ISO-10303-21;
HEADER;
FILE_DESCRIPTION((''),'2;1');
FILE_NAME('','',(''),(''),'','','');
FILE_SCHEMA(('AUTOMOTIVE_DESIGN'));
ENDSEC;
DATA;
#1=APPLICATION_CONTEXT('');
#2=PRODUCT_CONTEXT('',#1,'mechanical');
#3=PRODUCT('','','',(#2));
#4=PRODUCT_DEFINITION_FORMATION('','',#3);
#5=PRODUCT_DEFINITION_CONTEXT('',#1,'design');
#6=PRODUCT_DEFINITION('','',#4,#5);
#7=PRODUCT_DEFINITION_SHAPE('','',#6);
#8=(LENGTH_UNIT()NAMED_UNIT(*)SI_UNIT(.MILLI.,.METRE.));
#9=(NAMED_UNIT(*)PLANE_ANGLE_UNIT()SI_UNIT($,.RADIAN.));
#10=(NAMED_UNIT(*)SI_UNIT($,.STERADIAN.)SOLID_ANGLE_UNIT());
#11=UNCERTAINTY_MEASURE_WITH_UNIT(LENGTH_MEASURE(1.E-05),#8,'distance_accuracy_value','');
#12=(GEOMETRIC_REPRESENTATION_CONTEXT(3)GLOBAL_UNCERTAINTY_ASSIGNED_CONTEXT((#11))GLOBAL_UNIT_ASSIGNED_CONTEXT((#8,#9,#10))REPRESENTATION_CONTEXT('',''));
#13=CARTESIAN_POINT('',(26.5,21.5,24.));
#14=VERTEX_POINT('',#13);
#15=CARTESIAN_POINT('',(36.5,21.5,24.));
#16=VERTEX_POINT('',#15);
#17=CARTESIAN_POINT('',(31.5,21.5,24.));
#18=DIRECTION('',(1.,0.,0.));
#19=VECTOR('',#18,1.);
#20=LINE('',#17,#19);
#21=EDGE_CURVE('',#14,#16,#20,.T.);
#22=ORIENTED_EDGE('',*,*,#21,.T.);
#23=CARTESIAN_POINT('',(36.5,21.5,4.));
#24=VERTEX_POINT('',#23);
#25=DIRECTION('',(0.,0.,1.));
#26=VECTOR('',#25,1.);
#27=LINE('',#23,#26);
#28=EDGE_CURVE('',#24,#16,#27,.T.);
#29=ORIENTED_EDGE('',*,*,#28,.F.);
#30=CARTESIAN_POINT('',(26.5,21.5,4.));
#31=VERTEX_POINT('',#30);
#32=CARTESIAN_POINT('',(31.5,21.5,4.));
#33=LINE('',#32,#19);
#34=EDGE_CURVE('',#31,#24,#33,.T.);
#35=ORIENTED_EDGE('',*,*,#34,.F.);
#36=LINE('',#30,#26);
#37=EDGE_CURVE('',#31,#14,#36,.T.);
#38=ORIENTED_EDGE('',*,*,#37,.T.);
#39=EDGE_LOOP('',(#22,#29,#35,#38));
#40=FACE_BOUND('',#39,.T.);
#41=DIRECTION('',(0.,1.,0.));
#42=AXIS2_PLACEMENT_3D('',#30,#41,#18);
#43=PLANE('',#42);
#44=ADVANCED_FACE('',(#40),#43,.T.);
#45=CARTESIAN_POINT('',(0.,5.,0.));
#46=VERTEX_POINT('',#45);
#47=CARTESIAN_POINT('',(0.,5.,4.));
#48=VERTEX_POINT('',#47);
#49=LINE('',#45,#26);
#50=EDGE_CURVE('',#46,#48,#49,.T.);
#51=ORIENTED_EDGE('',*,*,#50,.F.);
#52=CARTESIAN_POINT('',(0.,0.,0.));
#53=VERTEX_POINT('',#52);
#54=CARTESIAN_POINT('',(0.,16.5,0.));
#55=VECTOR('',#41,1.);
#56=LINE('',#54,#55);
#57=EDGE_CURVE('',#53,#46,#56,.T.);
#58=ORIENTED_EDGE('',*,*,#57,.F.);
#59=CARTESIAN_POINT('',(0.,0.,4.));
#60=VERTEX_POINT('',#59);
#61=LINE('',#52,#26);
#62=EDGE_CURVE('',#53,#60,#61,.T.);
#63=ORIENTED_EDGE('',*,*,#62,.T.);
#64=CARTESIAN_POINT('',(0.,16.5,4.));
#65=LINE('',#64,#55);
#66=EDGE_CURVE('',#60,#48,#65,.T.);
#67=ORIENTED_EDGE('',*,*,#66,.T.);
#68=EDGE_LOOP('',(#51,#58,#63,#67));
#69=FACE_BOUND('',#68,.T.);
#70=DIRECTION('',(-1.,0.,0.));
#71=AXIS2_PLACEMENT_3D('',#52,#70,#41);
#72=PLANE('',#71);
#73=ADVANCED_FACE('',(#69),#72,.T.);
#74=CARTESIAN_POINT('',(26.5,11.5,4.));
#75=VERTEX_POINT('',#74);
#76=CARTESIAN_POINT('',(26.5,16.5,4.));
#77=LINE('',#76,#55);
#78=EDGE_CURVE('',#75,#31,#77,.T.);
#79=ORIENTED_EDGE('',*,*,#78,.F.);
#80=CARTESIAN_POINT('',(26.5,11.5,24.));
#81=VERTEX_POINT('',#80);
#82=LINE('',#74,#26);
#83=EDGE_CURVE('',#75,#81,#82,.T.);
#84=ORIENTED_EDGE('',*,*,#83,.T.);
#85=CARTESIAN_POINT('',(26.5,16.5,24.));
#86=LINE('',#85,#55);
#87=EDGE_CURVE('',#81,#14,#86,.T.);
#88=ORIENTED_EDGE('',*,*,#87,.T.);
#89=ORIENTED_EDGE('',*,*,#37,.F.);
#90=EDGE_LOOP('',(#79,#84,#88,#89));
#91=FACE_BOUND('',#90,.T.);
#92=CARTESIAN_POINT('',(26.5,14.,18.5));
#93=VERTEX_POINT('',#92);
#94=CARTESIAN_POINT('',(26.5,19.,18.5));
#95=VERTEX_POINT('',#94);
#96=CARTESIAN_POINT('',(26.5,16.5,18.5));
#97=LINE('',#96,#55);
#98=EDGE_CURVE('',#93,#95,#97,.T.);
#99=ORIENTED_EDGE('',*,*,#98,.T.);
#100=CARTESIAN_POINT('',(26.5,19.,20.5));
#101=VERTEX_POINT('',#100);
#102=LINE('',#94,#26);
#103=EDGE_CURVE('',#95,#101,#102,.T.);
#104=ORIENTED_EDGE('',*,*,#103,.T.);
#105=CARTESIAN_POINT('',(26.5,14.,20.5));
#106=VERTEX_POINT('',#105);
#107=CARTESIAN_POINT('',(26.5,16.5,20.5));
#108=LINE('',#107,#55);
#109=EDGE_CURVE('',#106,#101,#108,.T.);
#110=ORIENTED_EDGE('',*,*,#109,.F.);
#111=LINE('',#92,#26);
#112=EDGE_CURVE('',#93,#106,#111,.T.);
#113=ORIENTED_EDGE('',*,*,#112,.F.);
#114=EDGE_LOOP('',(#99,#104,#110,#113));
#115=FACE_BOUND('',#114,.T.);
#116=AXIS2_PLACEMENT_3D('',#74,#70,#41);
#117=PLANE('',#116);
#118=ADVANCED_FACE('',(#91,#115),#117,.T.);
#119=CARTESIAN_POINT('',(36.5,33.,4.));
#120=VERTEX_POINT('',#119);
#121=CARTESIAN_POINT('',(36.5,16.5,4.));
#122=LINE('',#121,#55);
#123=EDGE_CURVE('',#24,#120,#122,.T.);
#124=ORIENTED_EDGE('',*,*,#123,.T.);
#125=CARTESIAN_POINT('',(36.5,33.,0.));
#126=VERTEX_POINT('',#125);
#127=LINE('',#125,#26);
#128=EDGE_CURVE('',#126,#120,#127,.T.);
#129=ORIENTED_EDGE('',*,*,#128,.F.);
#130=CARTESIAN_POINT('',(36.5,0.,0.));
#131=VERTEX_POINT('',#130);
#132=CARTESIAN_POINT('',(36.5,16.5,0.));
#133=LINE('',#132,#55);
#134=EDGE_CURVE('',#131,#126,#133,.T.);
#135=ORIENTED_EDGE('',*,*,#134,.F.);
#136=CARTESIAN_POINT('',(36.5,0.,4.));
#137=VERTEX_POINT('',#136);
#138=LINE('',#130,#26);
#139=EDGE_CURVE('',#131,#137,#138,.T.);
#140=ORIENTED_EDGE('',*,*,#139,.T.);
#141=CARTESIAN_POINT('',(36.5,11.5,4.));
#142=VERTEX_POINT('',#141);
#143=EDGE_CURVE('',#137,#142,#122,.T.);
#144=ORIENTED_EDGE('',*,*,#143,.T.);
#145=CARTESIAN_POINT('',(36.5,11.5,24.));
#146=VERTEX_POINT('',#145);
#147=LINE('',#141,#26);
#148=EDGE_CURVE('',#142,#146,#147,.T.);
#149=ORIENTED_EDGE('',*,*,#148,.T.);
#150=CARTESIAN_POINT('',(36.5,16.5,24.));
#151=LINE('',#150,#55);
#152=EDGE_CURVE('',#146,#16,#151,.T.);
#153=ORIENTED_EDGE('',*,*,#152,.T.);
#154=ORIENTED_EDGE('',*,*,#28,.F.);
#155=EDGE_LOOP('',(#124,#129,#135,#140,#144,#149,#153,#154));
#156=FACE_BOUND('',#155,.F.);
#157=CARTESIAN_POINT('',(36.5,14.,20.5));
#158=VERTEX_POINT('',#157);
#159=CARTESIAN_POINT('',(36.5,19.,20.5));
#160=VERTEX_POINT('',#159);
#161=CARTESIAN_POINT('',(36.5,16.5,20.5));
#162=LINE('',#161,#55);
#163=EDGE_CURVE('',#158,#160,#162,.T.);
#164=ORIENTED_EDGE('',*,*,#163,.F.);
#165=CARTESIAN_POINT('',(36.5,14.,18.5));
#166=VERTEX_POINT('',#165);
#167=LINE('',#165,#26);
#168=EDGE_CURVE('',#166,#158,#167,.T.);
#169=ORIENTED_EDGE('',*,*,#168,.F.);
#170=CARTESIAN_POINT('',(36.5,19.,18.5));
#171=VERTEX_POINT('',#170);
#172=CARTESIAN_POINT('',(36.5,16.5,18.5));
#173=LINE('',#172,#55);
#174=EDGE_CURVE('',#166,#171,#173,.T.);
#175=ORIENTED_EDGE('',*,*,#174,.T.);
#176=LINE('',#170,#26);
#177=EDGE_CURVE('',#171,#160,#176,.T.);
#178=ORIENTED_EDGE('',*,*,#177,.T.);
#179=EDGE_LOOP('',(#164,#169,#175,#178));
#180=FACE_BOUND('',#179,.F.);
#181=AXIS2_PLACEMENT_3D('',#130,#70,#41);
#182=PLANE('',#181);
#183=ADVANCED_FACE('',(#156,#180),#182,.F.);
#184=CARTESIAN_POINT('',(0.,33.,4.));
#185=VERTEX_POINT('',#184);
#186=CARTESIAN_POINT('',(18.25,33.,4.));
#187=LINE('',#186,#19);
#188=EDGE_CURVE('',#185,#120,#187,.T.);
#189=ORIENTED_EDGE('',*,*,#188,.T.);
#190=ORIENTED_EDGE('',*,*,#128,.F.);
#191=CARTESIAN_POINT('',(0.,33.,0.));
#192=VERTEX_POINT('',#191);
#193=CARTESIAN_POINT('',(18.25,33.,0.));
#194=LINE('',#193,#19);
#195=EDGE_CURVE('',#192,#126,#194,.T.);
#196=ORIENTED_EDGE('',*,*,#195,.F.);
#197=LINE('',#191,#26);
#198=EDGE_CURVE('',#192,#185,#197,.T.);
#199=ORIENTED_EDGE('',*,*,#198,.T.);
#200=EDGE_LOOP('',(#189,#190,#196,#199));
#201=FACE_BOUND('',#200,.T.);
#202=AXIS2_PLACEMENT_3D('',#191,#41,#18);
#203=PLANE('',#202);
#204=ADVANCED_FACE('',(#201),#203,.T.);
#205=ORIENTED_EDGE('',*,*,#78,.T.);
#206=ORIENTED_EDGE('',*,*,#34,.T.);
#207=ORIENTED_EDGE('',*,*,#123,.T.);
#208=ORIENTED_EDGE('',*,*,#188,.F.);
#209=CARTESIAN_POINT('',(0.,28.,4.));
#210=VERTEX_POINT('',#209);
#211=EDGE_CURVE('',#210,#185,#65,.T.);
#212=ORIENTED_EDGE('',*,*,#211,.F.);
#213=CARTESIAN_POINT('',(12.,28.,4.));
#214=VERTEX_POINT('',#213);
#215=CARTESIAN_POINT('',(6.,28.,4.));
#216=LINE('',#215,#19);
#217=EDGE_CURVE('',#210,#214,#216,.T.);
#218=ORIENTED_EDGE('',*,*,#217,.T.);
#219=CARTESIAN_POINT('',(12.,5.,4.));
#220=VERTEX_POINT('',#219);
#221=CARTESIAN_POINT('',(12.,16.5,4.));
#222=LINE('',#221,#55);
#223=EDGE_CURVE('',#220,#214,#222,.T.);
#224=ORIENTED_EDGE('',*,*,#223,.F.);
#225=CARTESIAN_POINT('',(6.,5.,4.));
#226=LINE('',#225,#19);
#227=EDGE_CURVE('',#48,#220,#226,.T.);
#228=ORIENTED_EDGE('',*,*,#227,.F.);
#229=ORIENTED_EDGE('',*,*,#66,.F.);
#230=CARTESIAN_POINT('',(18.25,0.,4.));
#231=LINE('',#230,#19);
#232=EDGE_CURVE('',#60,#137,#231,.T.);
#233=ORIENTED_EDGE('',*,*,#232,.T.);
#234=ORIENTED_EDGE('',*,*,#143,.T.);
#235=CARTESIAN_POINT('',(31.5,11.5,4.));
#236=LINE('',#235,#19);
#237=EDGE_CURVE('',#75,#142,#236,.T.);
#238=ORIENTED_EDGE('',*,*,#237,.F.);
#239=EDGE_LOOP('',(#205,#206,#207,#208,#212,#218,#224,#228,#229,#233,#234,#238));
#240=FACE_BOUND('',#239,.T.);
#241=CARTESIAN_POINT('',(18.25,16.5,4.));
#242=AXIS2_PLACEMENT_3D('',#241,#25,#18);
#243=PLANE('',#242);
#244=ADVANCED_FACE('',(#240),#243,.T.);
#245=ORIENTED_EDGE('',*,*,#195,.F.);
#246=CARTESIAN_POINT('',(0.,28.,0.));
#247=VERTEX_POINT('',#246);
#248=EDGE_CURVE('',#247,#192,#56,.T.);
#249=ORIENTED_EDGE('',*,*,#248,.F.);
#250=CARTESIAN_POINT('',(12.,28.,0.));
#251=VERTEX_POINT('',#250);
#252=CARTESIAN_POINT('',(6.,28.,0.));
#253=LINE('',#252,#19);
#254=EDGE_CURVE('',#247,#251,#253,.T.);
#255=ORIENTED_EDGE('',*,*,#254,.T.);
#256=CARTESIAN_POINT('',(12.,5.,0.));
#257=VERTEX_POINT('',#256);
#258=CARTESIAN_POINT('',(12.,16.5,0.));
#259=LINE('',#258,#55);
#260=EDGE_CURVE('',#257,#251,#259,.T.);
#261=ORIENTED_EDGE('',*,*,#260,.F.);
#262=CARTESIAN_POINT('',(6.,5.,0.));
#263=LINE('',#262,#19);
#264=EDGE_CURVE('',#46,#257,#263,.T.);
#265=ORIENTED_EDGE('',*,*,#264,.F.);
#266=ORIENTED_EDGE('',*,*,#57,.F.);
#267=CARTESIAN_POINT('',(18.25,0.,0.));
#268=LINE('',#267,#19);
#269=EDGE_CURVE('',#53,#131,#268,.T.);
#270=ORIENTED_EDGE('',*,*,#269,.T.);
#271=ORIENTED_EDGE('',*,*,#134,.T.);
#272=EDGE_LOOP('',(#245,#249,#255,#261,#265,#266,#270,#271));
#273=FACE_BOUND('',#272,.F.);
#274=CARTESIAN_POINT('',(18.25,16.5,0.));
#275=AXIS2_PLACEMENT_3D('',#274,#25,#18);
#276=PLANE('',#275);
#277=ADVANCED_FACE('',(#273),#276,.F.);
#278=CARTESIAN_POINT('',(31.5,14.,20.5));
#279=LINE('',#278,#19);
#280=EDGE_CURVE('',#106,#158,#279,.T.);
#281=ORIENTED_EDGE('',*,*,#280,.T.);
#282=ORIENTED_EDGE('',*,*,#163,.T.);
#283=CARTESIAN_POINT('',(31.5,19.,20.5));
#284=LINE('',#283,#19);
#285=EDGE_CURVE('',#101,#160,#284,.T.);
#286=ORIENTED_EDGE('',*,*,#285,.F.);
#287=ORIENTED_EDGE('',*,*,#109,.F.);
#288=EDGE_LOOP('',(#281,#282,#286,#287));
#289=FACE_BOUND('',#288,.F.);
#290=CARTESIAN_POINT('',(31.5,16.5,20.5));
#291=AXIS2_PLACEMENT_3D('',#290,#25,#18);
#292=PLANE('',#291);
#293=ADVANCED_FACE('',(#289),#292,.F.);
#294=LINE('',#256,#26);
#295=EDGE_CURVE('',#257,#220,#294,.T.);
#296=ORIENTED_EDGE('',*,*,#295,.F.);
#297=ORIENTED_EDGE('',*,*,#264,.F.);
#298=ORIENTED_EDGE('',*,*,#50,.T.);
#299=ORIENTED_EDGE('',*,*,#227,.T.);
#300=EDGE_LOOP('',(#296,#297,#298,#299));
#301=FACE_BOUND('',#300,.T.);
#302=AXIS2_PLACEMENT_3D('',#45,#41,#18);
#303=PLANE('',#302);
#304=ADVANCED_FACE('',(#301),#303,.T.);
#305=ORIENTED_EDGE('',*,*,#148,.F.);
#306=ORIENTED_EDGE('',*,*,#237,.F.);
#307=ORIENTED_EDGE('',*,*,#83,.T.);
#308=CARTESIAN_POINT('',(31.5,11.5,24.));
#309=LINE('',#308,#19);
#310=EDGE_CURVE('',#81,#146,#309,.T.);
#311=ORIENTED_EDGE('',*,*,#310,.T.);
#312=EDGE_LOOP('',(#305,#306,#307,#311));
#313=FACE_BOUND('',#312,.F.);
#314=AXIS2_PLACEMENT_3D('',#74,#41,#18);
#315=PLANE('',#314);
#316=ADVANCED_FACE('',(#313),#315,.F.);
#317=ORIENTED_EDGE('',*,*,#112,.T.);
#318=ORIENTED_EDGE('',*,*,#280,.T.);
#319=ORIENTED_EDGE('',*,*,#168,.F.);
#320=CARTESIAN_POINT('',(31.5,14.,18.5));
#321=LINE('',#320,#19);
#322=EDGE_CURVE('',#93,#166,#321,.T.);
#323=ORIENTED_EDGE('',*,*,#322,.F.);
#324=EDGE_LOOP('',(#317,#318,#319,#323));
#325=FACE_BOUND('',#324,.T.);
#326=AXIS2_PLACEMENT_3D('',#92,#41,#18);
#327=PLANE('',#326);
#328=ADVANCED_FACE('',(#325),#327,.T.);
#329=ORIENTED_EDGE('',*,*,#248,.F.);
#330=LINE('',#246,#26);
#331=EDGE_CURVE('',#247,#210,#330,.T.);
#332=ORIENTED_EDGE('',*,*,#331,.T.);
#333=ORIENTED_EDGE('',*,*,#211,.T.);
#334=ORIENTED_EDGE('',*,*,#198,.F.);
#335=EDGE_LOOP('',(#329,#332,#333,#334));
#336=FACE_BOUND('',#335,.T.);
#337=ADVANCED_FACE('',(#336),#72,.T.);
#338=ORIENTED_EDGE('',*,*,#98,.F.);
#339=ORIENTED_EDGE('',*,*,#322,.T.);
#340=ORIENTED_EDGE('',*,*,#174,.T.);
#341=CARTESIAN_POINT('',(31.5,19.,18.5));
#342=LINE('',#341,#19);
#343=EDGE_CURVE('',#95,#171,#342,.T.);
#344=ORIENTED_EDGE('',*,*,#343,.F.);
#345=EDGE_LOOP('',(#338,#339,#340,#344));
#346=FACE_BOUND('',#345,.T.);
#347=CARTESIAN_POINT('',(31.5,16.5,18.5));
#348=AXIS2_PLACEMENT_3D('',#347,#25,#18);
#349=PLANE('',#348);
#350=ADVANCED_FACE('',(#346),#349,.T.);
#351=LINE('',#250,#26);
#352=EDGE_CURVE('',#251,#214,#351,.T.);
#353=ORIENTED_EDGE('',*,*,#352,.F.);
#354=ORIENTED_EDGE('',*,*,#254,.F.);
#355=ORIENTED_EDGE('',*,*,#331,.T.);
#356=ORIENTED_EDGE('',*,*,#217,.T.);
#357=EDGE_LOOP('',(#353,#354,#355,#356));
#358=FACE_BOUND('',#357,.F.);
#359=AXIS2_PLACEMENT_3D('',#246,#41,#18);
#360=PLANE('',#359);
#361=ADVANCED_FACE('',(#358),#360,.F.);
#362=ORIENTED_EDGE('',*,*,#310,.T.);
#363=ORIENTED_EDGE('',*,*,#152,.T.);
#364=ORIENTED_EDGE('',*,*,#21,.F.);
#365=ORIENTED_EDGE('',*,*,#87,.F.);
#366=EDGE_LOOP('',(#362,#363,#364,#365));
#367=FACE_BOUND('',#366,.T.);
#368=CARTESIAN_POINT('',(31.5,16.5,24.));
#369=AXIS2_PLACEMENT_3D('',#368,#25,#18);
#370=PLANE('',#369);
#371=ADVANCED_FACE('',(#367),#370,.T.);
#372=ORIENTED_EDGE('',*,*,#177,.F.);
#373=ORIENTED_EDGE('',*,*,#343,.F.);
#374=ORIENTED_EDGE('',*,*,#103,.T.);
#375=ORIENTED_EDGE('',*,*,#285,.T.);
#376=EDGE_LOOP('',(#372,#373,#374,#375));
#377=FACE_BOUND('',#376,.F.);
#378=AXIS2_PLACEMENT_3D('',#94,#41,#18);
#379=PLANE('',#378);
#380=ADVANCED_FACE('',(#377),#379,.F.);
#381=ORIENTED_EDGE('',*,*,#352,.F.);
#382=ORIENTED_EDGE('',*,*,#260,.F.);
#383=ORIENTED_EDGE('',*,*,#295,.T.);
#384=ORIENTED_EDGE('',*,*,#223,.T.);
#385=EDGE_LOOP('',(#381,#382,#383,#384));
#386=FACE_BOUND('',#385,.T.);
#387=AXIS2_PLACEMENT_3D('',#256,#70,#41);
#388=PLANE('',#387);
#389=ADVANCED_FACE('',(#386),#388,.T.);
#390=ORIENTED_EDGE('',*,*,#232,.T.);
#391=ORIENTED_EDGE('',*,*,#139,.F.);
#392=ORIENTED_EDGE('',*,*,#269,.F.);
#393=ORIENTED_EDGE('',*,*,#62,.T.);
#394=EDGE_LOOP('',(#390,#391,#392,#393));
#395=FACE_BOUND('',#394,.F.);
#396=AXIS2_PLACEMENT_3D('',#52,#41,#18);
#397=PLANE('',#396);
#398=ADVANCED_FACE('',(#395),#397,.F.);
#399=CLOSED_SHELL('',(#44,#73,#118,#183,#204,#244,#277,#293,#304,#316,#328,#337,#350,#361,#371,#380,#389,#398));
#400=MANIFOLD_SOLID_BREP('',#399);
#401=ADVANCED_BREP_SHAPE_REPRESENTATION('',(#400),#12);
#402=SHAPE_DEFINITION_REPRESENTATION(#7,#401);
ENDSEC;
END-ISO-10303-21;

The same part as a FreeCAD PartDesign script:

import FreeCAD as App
import Part
import Sketcher
from FreeCAD import Vector


def add_polygon(sketch, points):
    """Adds a closed chain of lines whose ends are joined by coincident constraints."""
    first, n = sketch.GeometryCount, len(points)
    for a, b in zip(points, points[1:] + points[:1]):
        sketch.addGeometry(Part.LineSegment(App.Vector(*a, 0), App.Vector(*b, 0)), False)
    for i in range(n):
        sketch.addConstraint(Sketcher.Constraint("Coincident", first + i, 2, first + (i + 1) % n, 1))

doc = App.newDocument("Part")
params = doc.addObject("Spreadsheet::Sheet", "Params")
for row, (alias, value) in enumerate([
    ("sketch1_width", "10 mm"),
    ("sketch1_height", "5 mm"),
    ("pad1_length", "2 mm"),
    ("sketch2_width", "10 mm"),
    ("pad2_length", "20 mm"),
    ("sketch3_width", "12 mm"),
    ("sketch3_height", "23 mm"),
    ("pad3_length", "4 mm"),
    ("sketch4_height", "33 mm"),
    ("sketch4_width", "36.5 mm"),
    ("pad4_length", "4 mm"),
], start=1):
    params.set(f"A{row}", alias)
    params.set(f"B{row}", "=" + value)
    params.setAlias(f"B{row}", alias)

body = doc.addObject("PartDesign::Body", "Body")

sketch1 = doc.addObject("Sketcher::SketchObject", "Sketch")
body.addObject(sketch1)
sketch1.AttachmentSupport = (doc.XY_Plane, [""])
sketch1.MapMode = "FlatFace"
sketch1.AttachmentOffset = App.Placement(Vector(0, 0, 18.5), App.Rotation())
add_polygon(sketch1, [(26, 19), (26, 14), (36, 14), (36, 19)])
sketch1.addConstraint([
    Sketcher.Constraint("Vertical", 0),
    Sketcher.Constraint("Horizontal", 1),
    Sketcher.Constraint("Vertical", 2),
    Sketcher.Constraint("Horizontal", 3),
    Sketcher.Constraint("DistanceX", 1, 1, 1, 2, 10.0),
    Sketcher.Constraint("DistanceY", 0, 2, 0, 1, 5.0),
    Sketcher.Constraint("DistanceY", -1, 1, 0, 2, 14.0),
    Sketcher.Constraint("DistanceX", -1, 1, 0, 2, 26.5),
])
sketch1.setExpression("Constraints[8]", "Params.sketch1_width")
sketch1.setExpression("Constraints[9]", "Params.sketch1_height")
pad1 = doc.addObject("PartDesign::Pad", "Pad")
body.addObject(pad1)
pad1.Profile = sketch1
pad1.setExpression("Length", "Params.pad1_length")
body2 = doc.addObject("PartDesign::Body", "Body001")

sketch2 = doc.addObject("Sketcher::SketchObject", "Sketch001")
body2.addObject(sketch2)
sketch2.AttachmentSupport = (doc.getObject("XY_Plane001"), [""])
sketch2.MapMode = "FlatFace"
sketch2.AttachmentOffset = App.Placement(Vector(0, 0, 4), App.Rotation())
add_polygon(sketch2, [(26, 22), (26, 12), (36, 12), (36, 22)])
sketch2.addConstraint([
    Sketcher.Constraint("Vertical", 0),
    Sketcher.Constraint("Horizontal", 1),
    Sketcher.Constraint("Vertical", 2),
    Sketcher.Constraint("Horizontal", 3),
    Sketcher.Constraint("Equal", 3, 0),
    Sketcher.Constraint("DistanceX", 1, 1, 1, 2, 10.0),
    Sketcher.Constraint("DistanceX", -1, 1, 0, 2, 26.5),
    Sketcher.Constraint("DistanceY", -1, 1, 0, 2, 11.5),
])
sketch2.setExpression("Constraints[9]", "Params.sketch2_width")
pad2 = doc.addObject("PartDesign::Pad", "Pad001")
body2.addObject(pad2)
pad2.Profile = sketch2
pad2.setExpression("Length", "Params.pad2_length")
doc.recompute()

boolean = doc.addObject("PartDesign::Boolean", "Boolean")
body2.addObject(boolean)
boolean.Type = "Cut"
boolean.addObjects([body])
body3 = doc.addObject("PartDesign::Body", "Body002")

sketch3 = doc.addObject("Sketcher::SketchObject", "Sketch002")
body3.addObject(sketch3)
sketch3.AttachmentSupport = (doc.getObject("XY_Plane002"), [""])
sketch3.MapMode = "FlatFace"
add_polygon(sketch3, [(0, 28), (0, 5), (12, 5), (12, 28)])
sketch3.addConstraint([
    Sketcher.Constraint("Vertical", 0),
    Sketcher.Constraint("Horizontal", 1),
    Sketcher.Constraint("Vertical", 2),
    Sketcher.Constraint("Horizontal", 3),
    Sketcher.Constraint("PointOnObject", 0, 2, -2),
    Sketcher.Constraint("DistanceX", 1, 1, 1, 2, 12.0),
    Sketcher.Constraint("DistanceY", 0, 2, 0, 1, 23.0),
    Sketcher.Constraint("DistanceY", -1, 1, 0, 2, 5.0),
])
sketch3.setExpression("Constraints[9]", "Params.sketch3_width")
sketch3.setExpression("Constraints[10]", "Params.sketch3_height")
pad3 = doc.addObject("PartDesign::Pad", "Pad002")
body3.addObject(pad3)
pad3.Profile = sketch3
pad3.setExpression("Length", "Params.pad3_length")
body4 = doc.addObject("PartDesign::Body", "Body003")

sketch4 = doc.addObject("Sketcher::SketchObject", "Sketch003")
body4.addObject(sketch4)
sketch4.AttachmentSupport = (doc.getObject("XY_Plane003"), [""])
sketch4.MapMode = "FlatFace"
add_polygon(sketch4, [(0, 33), (0, 0), (36, 0), (36, 33)])
sketch4.addConstraint([
    Sketcher.Constraint("Vertical", 0),
    Sketcher.Constraint("Horizontal", 1),
    Sketcher.Constraint("Vertical", 2),
    Sketcher.Constraint("Horizontal", 3),
    Sketcher.Constraint("Coincident", 0, 2, -1, 1),
    Sketcher.Constraint("DistanceY", 0, 2, 0, 1, 33.0),
    Sketcher.Constraint("DistanceX", 1, 1, 1, 2, 36.5),
])
sketch4.setExpression("Constraints[9]", "Params.sketch4_height")
sketch4.setExpression("Constraints[10]", "Params.sketch4_width")
pad4 = doc.addObject("PartDesign::Pad", "Pad003")
body4.addObject(pad4)
pad4.Profile = sketch4
pad4.setExpression("Length", "Params.pad4_length")
doc.recompute()

boolean2 = doc.addObject("PartDesign::Boolean", "Boolean001")
body4.addObject(boolean2)
boolean2.Type = "Cut"
boolean2.addObjects([body3])
doc.recompute()

boolean3 = doc.addObject("PartDesign::Boolean", "Boolean002")
body4.addObject(boolean3)
boolean3.Type = "Fuse"
boolean3.addObjects([body2])

doc.recompute()
